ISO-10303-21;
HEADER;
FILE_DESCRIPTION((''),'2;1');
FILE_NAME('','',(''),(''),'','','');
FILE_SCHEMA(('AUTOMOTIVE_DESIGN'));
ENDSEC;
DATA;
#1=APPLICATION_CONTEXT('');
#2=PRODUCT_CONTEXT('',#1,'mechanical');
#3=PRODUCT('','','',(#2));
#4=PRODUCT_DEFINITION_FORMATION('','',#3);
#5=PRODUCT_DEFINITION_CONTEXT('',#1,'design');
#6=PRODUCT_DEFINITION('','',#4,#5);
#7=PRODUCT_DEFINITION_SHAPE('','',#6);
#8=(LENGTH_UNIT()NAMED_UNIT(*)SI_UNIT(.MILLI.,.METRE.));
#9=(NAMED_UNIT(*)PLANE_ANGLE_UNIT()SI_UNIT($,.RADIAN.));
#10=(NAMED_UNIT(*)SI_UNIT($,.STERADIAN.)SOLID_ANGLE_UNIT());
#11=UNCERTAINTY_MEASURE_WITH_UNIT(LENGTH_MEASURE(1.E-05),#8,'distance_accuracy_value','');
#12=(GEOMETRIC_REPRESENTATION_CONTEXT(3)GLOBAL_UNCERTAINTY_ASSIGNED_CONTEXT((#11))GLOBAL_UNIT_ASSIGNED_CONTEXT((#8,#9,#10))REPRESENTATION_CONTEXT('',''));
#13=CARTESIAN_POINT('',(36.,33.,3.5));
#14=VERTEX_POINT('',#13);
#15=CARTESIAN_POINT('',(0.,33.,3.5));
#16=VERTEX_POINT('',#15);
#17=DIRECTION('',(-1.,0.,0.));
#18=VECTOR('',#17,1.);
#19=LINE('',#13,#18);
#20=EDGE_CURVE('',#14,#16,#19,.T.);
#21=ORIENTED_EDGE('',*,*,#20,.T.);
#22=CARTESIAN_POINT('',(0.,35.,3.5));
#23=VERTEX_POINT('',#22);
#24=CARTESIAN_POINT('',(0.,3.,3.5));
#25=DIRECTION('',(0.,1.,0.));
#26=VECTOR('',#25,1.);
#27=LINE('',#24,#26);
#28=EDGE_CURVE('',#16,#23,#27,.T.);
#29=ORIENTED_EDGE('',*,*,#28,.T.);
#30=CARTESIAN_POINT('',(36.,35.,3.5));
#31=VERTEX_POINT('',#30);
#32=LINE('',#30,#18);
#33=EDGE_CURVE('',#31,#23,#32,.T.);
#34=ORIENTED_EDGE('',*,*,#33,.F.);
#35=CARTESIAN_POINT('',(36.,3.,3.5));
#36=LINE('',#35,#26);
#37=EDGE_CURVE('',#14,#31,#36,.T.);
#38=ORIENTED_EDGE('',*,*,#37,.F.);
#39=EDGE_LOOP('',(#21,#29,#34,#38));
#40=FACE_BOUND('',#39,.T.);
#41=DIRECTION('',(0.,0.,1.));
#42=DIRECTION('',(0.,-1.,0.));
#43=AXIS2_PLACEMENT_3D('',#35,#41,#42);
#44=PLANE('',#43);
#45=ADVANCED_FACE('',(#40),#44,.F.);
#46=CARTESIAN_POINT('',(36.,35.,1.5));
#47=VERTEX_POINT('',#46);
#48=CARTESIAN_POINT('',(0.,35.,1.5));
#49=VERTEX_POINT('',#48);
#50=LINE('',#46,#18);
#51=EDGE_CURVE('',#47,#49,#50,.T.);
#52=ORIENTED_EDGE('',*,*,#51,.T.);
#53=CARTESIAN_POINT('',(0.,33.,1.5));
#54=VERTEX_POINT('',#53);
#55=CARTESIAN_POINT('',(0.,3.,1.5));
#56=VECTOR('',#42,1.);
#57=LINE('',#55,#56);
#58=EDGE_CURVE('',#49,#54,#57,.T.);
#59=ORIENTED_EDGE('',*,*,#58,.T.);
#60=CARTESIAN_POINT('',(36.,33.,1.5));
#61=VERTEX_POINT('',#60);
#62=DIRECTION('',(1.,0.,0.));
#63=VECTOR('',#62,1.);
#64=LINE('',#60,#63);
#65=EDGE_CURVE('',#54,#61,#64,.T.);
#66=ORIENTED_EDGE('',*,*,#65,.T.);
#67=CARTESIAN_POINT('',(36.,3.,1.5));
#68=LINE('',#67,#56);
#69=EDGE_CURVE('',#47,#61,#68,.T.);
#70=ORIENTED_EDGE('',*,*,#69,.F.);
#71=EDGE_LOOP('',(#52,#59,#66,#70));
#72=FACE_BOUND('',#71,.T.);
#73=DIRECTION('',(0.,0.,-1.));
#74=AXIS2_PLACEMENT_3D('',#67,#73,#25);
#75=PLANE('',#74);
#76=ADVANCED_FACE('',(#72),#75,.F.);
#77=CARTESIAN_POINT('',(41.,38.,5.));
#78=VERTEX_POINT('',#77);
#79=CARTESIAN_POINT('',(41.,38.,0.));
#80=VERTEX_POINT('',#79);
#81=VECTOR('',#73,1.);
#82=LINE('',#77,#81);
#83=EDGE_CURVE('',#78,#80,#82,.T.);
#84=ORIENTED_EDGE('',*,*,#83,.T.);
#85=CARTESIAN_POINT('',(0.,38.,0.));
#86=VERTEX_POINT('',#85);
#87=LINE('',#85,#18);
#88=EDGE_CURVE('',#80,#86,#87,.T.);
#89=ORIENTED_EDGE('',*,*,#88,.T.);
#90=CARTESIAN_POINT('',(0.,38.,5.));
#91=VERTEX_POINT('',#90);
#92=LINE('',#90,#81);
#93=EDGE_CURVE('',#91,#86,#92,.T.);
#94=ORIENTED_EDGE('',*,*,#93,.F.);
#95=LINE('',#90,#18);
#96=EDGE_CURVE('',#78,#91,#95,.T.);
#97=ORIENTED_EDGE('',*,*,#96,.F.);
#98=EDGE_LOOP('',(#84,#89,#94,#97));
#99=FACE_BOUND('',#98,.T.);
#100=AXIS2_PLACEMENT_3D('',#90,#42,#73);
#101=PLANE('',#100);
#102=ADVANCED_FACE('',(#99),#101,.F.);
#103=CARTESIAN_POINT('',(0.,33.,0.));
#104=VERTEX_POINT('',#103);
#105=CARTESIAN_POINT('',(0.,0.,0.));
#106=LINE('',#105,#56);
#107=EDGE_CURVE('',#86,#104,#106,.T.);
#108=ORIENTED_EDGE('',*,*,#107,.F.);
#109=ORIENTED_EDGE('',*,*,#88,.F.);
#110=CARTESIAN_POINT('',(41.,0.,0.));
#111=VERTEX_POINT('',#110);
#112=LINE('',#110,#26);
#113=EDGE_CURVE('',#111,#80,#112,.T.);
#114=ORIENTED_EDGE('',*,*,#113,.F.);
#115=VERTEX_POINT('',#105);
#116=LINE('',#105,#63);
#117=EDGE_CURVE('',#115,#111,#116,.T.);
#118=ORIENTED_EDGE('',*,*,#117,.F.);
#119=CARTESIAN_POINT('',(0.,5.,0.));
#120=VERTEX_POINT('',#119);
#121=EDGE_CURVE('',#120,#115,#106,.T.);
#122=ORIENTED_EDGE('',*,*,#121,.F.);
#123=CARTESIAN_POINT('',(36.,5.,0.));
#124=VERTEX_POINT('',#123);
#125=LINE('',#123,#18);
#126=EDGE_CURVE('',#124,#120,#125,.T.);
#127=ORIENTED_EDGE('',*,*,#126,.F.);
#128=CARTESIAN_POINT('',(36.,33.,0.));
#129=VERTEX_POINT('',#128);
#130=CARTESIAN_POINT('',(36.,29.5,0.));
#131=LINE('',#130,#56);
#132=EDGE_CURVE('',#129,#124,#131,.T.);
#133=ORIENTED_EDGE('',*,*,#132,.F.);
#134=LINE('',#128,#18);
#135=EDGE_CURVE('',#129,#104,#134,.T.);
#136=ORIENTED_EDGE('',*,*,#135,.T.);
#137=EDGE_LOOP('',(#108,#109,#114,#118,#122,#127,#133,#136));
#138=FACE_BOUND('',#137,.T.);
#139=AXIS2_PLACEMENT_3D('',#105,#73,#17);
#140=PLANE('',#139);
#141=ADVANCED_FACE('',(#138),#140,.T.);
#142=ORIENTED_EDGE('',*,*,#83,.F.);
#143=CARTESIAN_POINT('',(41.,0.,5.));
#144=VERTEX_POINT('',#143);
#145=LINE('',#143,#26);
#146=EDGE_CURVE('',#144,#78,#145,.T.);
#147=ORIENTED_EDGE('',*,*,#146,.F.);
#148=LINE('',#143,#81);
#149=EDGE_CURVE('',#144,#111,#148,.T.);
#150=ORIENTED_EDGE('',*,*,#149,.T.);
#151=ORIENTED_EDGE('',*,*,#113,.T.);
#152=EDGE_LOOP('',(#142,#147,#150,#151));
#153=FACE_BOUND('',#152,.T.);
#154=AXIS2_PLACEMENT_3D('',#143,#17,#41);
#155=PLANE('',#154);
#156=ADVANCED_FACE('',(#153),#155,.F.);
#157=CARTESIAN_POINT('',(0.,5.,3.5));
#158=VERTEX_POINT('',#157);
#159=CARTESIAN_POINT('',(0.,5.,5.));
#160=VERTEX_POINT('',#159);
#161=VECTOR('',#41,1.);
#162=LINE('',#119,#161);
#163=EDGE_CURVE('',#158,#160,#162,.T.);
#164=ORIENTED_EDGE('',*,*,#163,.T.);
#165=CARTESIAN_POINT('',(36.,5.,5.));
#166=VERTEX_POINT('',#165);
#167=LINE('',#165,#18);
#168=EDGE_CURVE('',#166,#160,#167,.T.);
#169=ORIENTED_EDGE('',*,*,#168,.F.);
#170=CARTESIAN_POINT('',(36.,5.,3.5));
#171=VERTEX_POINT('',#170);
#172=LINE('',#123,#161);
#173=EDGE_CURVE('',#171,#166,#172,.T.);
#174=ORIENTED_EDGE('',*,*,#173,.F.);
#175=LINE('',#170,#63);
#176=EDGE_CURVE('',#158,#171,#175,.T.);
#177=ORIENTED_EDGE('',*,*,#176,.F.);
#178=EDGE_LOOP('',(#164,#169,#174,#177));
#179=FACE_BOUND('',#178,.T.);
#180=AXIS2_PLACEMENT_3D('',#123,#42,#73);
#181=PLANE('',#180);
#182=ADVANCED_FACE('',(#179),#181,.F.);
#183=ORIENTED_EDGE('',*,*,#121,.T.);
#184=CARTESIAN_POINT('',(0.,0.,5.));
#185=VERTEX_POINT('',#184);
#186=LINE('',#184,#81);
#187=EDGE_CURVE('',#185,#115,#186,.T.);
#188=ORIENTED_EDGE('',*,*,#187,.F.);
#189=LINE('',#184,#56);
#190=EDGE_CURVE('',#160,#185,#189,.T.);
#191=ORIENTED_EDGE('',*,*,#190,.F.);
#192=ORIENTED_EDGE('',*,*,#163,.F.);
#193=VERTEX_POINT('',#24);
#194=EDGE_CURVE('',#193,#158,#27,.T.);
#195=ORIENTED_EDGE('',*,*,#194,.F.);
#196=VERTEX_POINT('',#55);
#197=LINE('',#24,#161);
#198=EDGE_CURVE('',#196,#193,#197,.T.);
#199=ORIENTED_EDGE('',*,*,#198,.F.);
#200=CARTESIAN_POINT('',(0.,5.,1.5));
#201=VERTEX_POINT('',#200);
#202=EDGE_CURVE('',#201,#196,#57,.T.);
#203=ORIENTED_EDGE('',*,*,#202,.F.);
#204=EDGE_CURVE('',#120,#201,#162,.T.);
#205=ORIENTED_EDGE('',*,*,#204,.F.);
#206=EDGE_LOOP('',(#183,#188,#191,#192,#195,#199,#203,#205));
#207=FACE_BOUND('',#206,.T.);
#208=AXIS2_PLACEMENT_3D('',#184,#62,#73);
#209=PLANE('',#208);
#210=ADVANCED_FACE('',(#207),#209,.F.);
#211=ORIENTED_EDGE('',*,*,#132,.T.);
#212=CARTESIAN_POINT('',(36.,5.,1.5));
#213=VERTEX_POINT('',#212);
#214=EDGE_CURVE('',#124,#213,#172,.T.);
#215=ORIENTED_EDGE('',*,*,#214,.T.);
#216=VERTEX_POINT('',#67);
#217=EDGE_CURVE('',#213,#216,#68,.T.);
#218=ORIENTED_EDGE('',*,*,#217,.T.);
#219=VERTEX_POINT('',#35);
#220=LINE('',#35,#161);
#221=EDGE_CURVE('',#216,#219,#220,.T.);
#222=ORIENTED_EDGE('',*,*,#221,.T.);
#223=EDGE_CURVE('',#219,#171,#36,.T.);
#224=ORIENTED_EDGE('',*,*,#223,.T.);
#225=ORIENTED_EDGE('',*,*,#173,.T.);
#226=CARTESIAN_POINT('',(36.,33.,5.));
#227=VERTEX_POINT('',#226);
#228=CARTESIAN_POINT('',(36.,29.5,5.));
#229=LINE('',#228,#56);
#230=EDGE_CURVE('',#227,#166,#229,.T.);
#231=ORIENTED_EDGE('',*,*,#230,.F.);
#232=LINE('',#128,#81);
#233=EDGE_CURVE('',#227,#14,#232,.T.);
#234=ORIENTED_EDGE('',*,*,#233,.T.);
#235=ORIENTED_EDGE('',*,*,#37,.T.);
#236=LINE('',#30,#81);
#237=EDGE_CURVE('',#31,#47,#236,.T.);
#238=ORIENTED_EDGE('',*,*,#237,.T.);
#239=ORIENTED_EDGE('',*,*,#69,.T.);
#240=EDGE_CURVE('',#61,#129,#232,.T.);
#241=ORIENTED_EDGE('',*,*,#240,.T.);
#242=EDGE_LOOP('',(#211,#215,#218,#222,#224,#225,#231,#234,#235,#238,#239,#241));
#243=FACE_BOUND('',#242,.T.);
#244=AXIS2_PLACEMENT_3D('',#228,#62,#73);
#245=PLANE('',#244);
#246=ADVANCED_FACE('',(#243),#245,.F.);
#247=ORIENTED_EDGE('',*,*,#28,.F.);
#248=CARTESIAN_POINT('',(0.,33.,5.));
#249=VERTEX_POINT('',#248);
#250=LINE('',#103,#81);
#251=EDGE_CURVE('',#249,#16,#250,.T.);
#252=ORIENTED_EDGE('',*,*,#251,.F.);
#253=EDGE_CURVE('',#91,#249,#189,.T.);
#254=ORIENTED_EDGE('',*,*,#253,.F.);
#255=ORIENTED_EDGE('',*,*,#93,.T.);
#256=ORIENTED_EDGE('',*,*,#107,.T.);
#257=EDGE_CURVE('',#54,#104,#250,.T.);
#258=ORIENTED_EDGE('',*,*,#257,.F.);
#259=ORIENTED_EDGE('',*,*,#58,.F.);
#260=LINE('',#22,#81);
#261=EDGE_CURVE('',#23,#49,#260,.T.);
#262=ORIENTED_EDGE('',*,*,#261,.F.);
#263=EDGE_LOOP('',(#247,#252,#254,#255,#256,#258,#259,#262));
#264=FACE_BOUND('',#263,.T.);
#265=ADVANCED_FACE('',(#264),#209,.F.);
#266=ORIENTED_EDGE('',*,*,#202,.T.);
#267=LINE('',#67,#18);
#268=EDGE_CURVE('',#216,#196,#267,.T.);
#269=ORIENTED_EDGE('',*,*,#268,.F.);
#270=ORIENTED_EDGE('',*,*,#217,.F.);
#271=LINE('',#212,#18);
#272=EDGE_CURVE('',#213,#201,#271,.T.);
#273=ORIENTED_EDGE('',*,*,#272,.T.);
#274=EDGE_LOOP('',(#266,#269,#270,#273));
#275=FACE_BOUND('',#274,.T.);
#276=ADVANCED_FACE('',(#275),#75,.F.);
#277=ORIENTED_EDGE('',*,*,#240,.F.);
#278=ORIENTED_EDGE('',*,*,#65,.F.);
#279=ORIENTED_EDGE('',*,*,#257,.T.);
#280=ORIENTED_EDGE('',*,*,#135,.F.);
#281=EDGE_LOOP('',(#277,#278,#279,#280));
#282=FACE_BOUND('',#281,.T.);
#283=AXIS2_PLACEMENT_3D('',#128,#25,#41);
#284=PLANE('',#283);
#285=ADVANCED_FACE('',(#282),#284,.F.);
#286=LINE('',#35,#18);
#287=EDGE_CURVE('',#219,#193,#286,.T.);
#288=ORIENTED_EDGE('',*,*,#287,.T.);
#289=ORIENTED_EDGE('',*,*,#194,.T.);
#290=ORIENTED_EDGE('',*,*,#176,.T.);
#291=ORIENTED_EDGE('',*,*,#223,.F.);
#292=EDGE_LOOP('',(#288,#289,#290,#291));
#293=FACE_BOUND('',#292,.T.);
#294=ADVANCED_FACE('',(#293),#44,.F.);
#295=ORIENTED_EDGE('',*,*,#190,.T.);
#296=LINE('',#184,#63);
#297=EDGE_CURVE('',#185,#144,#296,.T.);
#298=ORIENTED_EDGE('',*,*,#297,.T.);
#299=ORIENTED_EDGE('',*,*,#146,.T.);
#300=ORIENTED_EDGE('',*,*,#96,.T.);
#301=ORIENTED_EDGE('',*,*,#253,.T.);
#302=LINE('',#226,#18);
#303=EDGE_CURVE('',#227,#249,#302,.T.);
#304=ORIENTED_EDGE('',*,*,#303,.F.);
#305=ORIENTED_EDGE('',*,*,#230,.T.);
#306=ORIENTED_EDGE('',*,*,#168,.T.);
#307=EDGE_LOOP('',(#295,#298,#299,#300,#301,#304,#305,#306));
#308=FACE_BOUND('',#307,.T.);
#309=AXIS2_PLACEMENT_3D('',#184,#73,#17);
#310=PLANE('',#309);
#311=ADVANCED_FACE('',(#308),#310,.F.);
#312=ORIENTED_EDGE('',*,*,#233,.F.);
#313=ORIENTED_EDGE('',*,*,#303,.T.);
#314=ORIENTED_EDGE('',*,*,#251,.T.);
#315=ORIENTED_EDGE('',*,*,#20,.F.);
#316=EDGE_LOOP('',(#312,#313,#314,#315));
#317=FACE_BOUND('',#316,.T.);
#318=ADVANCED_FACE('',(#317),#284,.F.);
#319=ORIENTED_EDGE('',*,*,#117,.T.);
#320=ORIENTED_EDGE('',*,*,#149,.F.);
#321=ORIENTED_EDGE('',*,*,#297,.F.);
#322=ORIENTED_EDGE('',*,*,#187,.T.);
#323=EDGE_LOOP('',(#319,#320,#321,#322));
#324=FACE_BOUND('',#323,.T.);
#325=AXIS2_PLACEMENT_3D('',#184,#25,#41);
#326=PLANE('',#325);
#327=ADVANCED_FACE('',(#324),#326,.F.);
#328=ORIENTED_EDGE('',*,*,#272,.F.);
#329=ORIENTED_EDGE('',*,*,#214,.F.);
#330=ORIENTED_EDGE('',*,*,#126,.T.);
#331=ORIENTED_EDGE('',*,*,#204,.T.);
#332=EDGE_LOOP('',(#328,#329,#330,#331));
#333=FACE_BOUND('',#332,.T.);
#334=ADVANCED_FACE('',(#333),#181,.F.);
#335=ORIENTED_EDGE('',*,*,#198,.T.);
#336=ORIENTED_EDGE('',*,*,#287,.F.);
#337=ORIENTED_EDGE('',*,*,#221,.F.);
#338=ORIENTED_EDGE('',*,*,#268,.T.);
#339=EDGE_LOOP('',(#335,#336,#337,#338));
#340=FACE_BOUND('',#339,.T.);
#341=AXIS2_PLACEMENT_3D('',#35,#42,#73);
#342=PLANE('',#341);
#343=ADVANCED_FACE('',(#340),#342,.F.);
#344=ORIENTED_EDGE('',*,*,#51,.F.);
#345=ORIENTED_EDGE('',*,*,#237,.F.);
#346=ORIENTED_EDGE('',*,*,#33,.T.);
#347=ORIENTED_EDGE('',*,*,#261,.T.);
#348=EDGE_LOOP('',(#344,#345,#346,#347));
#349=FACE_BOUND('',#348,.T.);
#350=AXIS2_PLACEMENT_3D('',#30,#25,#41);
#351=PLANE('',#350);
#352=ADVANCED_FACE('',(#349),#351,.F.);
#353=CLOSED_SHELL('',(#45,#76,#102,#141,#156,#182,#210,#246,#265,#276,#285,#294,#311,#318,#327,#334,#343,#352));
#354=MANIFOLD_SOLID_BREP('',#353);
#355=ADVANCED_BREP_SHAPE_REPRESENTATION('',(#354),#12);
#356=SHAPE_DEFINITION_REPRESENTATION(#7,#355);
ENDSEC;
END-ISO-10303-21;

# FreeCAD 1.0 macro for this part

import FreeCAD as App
import Part
import Sketcher
Q = App.Units.Quantity

doc = App.newDocument("Part")
params = doc.addObject("Spreadsheet::Sheet", "Params")
for row, (alias, value) in enumerate([
    ("sketch1_width", "41 mm"),
    ("sketch1_height", "38 mm"),
    ("pad1_length", "5 mm"),
    ("sketch2_width", "36 mm"),
    ("sketch2_height", "21 mm"),
    ("pocket1_length", "5 mm"),
    ("sketch3_width", "32 mm"),
    ("sketch3_height", "2 mm"),
    ("pocket2_length", "36 mm"),
    ("sketch4_width", "28 mm"),
    ("sketch4_height", "5 mm"),
    ("pocket3_length", "36 mm"),
], start=1):
    params.set(f"A{row}", alias)
    params.set(f"B{row}", "=" + value)
    params.setAlias(f"B{row}", alias)

body = doc.addObject("PartDesign::Body", "Body")

# Sketch on XY plane
sketch1 = body.newObject("Sketcher::SketchObject", "Sketch")
sketch1.AttachmentSupport = (doc.getObject("XY_Plane"), [""])
sketch1.MapMode = "FlatFace"
sketch1.addGeometry([
    Part.LineSegment(App.Vector(0, 38, 0), App.Vector(0, 0, 0)),
    Part.LineSegment(App.Vector(0, 0, 0), App.Vector(41, 0, 0)),
    Part.LineSegment(App.Vector(41, 0, 0), App.Vector(41, 38, 0)),
    Part.LineSegment(App.Vector(41, 38, 0), App.Vector(0, 38, 0)),
], False)
sketch1.addConstraint([
    Sketcher.Constraint("Coincident", 0, 2, 1, 1),
    Sketcher.Constraint("Coincident", 1, 2, 2, 1),
    Sketcher.Constraint("Coincident", 2, 2, 3, 1),
    Sketcher.Constraint("Coincident", 3, 2, 0, 1),
    Sketcher.Constraint("Vertical", 0),
    Sketcher.Constraint("Horizontal", 1),
    Sketcher.Constraint("Vertical", 2),
    Sketcher.Constraint("Horizontal", 3),
    Sketcher.Constraint("Coincident", 0, 2, -1, 1),
    Sketcher.Constraint("DistanceX", 1, 1, 1, 2, Q("41 mm")),
    Sketcher.Constraint("DistanceY", 0, 2, 0, 1, Q("38 mm")),
])
sketch1.setExpression("Constraints[9]", "Params.sketch1_width")
sketch1.setExpression("Constraints[10]", "Params.sketch1_height")
pad1 = body.newObject("PartDesign::Pad", "Pad")
pad1.Profile = sketch1
pad1.setExpression("Length", "Params.pad1_length")

# Sketch on XY plane
sketch2 = body.newObject("Sketcher::SketchObject", "Sketch001")
sketch2.AttachmentSupport = (doc.getObject("XY_Plane"), [""])
sketch2.MapMode = "FlatFace"
sketch2.addGeometry([
    Part.LineSegment(App.Vector(36, 30, 0), App.Vector(36, 8, 0)),
    Part.LineSegment(App.Vector(36, 8, 0), App.Vector(0, 8, 0)),
    Part.LineSegment(App.Vector(0, 8, 0), App.Vector(0, 30, 0)),
    Part.LineSegment(App.Vector(0, 30, 0), App.Vector(36, 30, 0)),
], False)
sketch2.addConstraint([
    Sketcher.Constraint("Coincident", 0, 2, 1, 1),
    Sketcher.Constraint("Coincident", 1, 2, 2, 1),
    Sketcher.Constraint("Coincident", 2, 2, 3, 1),
    Sketcher.Constraint("Coincident", 3, 2, 0, 1),
    Sketcher.Constraint("Vertical", 0),
    Sketcher.Constraint("Horizontal", 1),
    Sketcher.Constraint("Vertical", 2),
    Sketcher.Constraint("Horizontal", 3),
    Sketcher.Constraint("PointOnObject", 1, 2, -2),
    Sketcher.Constraint("DistanceX", 1, 2, 1, 1, Q("36 mm")),
    Sketcher.Constraint("DistanceY", 0, 2, 0, 1, Q("21 mm")),
    Sketcher.Constraint("DistanceY", -1, 1, 0, 2, Q("8.5 mm")),
])
sketch2.setExpression("Constraints[9]", "Params.sketch2_width")
sketch2.setExpression("Constraints[10]", "Params.sketch2_height")
pocket1 = body.newObject("PartDesign::Pocket", "Pocket")
pocket1.Profile = sketch2
pocket1.setExpression("Length", "Params.pocket1_length")
pocket1.Reversed = True

# Sketch on YZ plane
sketch3 = body.newObject("Sketcher::SketchObject", "Sketch002")
sketch3.AttachmentSupport = (doc.getObject("YZ_Plane"), [""])
sketch3.MapMode = "FlatFace"
sketch3.addGeometry([
    Part.LineSegment(App.Vector(35, 1.5, 0), App.Vector(3, 1.5, 0)),
    Part.LineSegment(App.Vector(3, 1.5, 0), App.Vector(3, 3.5, 0)),
    Part.LineSegment(App.Vector(3, 3.5, 0), App.Vector(35, 3.5, 0)),
    Part.LineSegment(App.Vector(35, 3.5, 0), App.Vector(35, 1.5, 0)),
], False)
sketch3.addConstraint([
    Sketcher.Constraint("Coincident", 0, 2, 1, 1),
    Sketcher.Constraint("Coincident", 1, 2, 2, 1),
    Sketcher.Constraint("Coincident", 2, 2, 3, 1),
    Sketcher.Constraint("Coincident", 3, 2, 0, 1),
    Sketcher.Constraint("Horizontal", 0),
    Sketcher.Constraint("Vertical", 1),
    Sketcher.Constraint("Horizontal", 2),
    Sketcher.Constraint("Vertical", 3),
    Sketcher.Constraint("DistanceX", 0, 2, 0, 1, Q("32 mm")),
    Sketcher.Constraint("DistanceY", 1, 1, 1, 2, Q("2 mm")),
    Sketcher.Constraint("DistanceX", -1, 1, 0, 2, Q("3 mm")),
    Sketcher.Constraint("DistanceY", -1, 1, 0, 2, Q("1.5 mm")),
])
sketch3.setExpression("Constraints[8]", "Params.sketch3_width")
sketch3.setExpression("Constraints[9]", "Params.sketch3_height")
pocket2 = body.newObject("PartDesign::Pocket", "Pocket001")
pocket2.Profile = sketch3
pocket2.setExpression("Length", "Params.pocket2_length")
pocket2.Reversed = True

# Sketch on YZ plane
sketch4 = body.newObject("Sketcher::SketchObject", "Sketch003")
sketch4.AttachmentSupport = (doc.getObject("YZ_Plane"), [""])
sketch4.MapMode = "FlatFace"
sketch4.addGeometry([
    Part.LineSegment(App.Vector(33, 0, 0), App.Vector(5, 0, 0)),
    Part.LineSegment(App.Vector(5, 0, 0), App.Vector(5, 5, 0)),
    Part.LineSegment(App.Vector(5, 5, 0), App.Vector(33, 5, 0)),
    Part.LineSegment(App.Vector(33, 5, 0), App.Vector(33, 0, 0)),
], False)
sketch4.addConstraint([
    Sketcher.Constraint("Coincident", 0, 2, 1, 1),
    Sketcher.Constraint("Coincident", 1, 2, 2, 1),
    Sketcher.Constraint("Coincident", 2, 2, 3, 1),
    Sketcher.Constraint("Coincident", 3, 2, 0, 1),
    Sketcher.Constraint("Horizontal", 0),
    Sketcher.Constraint("Vertical", 1),
    Sketcher.Constraint("Horizontal", 2),
    Sketcher.Constraint("Vertical", 3),
    Sketcher.Constraint("PointOnObject", 0, 2, -1),
    Sketcher.Constraint("DistanceX", 0, 2, 0, 1, Q("28 mm")),
    Sketcher.Constraint("DistanceY", 1, 1, 1, 2, Q("5 mm")),
    Sketcher.Constraint("DistanceX", -1, 1, 0, 2, Q("5 mm")),
])
sketch4.setExpression("Constraints[9]", "Params.sketch4_width")
sketch4.setExpression("Constraints[10]", "Params.sketch4_height")
pocket3 = body.newObject("PartDesign::Pocket", "Pocket002")
pocket3.Profile = sketch4
pocket3.setExpression("Length", "Params.pocket3_length")
pocket3.Reversed = True

doc.recompute()
